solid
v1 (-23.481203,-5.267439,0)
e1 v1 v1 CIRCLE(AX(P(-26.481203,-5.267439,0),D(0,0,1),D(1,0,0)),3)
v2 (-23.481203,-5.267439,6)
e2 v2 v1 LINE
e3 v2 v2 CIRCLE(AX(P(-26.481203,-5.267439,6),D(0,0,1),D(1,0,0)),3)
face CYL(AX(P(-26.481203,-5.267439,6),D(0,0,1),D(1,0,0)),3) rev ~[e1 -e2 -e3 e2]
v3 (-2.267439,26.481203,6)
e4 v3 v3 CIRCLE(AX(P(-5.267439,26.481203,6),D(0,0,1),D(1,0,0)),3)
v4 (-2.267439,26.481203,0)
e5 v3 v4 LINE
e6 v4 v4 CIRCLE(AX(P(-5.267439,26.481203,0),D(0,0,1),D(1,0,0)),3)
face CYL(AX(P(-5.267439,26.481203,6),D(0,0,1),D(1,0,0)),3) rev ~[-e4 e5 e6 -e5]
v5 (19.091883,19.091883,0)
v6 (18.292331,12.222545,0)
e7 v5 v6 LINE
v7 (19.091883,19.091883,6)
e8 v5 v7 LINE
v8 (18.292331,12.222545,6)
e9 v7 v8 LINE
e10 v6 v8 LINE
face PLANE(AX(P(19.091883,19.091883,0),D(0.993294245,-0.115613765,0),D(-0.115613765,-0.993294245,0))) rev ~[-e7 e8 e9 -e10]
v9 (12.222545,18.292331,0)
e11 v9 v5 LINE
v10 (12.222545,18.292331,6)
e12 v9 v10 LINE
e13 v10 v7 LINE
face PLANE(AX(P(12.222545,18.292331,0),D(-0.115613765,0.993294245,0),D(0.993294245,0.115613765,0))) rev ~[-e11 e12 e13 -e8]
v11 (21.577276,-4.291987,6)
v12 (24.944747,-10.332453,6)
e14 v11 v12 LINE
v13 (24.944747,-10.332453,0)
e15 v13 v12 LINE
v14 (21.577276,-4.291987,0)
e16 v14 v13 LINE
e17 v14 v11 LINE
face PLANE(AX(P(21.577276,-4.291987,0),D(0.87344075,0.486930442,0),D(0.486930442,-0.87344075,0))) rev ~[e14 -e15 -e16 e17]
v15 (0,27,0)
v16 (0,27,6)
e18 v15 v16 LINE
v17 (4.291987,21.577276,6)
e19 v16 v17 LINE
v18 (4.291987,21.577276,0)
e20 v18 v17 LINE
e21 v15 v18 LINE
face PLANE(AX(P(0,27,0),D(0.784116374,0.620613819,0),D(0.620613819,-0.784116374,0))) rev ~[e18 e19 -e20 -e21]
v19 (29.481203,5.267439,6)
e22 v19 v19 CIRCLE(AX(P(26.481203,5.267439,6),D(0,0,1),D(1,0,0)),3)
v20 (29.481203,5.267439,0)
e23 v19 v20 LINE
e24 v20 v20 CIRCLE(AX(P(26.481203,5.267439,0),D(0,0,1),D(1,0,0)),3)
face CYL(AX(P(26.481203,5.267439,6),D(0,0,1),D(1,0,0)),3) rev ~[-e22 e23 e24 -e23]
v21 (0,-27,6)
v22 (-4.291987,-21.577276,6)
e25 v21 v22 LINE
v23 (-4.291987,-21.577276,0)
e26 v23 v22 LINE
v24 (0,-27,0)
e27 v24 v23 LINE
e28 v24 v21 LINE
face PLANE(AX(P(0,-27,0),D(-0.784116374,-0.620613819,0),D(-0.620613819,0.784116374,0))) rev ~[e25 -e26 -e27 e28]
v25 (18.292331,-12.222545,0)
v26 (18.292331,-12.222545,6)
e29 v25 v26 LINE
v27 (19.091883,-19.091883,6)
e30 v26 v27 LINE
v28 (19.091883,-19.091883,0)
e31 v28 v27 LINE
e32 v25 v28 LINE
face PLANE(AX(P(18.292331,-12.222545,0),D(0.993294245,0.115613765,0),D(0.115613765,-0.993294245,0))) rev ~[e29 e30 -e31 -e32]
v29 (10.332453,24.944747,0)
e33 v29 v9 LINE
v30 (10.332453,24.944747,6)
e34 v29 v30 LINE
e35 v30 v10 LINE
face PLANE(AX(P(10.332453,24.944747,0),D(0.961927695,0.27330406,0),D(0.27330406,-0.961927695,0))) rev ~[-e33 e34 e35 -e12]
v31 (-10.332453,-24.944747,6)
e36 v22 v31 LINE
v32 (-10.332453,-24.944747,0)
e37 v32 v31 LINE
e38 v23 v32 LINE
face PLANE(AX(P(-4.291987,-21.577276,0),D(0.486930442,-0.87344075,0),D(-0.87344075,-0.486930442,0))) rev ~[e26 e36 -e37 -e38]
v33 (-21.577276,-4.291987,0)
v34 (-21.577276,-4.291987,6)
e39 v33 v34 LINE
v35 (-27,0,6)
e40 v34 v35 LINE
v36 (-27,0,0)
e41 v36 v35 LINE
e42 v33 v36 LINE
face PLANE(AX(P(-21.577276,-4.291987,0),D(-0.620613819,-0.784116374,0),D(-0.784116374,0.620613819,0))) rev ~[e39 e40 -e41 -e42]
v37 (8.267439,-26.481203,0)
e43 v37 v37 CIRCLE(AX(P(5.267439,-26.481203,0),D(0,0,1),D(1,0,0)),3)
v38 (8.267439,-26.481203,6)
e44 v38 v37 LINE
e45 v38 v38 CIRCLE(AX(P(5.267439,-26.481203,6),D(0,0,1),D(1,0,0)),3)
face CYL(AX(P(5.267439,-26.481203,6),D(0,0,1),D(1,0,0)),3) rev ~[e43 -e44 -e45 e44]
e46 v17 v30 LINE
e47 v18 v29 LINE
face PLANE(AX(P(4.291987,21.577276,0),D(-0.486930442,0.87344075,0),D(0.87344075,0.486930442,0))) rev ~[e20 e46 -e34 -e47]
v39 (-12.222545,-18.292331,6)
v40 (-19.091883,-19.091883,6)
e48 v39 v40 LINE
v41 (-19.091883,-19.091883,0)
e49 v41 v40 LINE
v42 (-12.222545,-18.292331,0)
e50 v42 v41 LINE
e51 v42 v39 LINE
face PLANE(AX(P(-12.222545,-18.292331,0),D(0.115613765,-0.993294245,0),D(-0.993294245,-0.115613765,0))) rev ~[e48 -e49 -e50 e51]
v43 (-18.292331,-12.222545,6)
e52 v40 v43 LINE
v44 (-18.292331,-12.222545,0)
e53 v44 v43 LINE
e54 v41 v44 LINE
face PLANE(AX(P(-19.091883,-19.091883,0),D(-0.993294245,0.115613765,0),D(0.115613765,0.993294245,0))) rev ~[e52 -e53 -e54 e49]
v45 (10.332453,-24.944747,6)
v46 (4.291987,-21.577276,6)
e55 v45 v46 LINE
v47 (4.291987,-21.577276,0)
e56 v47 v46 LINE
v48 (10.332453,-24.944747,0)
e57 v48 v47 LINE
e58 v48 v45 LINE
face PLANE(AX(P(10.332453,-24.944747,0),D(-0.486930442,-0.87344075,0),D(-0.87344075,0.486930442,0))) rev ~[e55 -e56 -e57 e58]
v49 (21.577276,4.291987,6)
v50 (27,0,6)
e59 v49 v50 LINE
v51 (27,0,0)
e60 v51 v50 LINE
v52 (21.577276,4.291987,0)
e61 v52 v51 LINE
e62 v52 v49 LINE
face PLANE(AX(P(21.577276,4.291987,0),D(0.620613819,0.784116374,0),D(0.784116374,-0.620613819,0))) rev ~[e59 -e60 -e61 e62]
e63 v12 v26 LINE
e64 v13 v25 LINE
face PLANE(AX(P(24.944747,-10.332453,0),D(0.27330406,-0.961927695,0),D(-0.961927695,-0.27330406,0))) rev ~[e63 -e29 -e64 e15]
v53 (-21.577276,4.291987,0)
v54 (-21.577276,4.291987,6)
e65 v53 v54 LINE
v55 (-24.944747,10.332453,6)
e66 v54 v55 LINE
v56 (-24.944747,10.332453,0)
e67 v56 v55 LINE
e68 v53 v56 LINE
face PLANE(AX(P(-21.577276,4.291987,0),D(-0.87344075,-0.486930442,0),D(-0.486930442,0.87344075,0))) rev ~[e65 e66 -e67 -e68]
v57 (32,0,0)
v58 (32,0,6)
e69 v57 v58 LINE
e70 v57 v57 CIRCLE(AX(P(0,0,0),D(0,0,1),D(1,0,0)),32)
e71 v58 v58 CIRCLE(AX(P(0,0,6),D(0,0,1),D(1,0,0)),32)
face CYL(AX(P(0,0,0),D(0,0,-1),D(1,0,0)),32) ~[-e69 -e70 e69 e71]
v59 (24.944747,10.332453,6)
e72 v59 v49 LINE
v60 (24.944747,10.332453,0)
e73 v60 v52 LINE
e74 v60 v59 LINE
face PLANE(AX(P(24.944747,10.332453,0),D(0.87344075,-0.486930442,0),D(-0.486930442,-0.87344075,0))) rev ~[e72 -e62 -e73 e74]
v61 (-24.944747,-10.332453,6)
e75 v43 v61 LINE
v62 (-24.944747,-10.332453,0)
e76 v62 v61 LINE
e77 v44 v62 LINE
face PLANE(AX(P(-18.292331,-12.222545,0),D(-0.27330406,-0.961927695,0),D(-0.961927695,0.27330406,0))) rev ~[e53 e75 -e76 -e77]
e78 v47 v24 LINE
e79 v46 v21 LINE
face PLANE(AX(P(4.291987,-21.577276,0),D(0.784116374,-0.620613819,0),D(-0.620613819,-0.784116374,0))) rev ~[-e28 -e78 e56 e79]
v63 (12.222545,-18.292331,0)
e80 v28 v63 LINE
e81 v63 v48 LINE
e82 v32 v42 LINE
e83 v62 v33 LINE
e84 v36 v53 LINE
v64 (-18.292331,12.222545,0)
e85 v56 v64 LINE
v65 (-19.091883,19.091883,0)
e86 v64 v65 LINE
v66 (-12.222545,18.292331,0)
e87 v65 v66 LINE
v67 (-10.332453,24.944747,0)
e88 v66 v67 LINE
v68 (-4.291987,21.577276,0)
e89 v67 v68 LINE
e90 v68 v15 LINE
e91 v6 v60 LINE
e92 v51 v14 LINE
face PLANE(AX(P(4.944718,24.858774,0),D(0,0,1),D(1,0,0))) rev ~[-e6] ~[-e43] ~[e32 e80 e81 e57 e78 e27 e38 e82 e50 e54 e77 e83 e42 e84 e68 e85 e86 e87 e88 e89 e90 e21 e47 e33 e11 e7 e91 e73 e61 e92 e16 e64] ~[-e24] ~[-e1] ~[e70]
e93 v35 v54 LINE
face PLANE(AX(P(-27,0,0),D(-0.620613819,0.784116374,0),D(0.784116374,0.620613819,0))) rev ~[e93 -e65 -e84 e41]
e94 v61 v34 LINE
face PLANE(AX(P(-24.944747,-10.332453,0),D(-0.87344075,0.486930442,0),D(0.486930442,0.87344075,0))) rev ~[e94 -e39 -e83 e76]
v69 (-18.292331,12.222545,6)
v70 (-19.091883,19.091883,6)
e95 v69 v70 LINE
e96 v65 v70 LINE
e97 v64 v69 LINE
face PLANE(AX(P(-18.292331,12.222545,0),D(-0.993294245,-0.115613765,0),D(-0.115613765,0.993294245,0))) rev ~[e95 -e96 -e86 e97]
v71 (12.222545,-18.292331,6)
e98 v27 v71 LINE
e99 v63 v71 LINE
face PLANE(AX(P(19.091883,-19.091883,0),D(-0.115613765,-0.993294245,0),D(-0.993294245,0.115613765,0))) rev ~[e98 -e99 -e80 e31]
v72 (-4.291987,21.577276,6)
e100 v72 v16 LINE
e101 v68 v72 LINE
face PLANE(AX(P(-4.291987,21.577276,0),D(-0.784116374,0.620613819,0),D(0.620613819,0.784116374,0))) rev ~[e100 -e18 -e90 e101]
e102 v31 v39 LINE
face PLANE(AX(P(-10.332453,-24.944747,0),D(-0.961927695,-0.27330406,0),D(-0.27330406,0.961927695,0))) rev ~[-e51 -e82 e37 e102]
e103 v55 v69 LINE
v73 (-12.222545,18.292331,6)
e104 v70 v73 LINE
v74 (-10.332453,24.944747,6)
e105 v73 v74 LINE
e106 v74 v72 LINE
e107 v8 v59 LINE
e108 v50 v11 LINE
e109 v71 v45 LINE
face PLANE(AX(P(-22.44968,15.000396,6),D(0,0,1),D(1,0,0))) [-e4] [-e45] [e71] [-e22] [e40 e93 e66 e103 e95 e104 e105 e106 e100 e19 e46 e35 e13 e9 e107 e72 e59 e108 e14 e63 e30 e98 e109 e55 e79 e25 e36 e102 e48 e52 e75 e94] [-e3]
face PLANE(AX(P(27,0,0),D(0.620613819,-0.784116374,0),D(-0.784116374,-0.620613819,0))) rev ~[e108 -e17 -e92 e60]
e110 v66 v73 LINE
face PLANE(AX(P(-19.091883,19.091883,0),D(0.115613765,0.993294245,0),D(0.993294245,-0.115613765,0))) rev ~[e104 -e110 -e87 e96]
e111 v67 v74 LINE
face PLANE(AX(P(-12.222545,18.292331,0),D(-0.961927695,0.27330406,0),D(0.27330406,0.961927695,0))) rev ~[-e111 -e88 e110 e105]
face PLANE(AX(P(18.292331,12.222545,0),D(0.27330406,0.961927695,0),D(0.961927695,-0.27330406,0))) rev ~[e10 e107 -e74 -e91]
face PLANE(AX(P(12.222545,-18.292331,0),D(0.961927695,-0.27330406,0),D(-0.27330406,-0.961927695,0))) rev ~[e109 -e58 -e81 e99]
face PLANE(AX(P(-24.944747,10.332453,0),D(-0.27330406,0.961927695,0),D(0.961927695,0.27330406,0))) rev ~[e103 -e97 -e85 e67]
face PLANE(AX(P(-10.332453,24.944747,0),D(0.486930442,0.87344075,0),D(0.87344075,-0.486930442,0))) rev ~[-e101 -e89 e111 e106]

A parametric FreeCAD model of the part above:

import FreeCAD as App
import Part
import Sketcher
from FreeCAD import Vector


def add_polygon(sketch, points):
    """Adds a closed chain of lines whose ends are joined by coincident constraints."""
    first, n = sketch.GeometryCount, len(points)
    for a, b in zip(points, points[1:] + points[:1]):
        sketch.addGeometry(Part.LineSegment(App.Vector(*a, 0), App.Vector(*b, 0)), False)
    for i in range(n):
        sketch.addConstraint(Sketcher.Constraint("Coincident", first + i, 2, first + (i + 1) % n, 1))

doc = App.newDocument("Part")
body = doc.addObject("PartDesign::Body", "Body")

sketch1 = body.newObject("Sketcher::SketchObject", "Sketch")
sketch1.AttachmentSupport = (doc.getObject("XY_Plane"), [""])
sketch1.MapMode = "FlatFace"
sketch1.addGeometry(Part.Circle(Vector(0, 0, 0), Vector(0, 0, 1), 32), False)
add_polygon(sketch1, [(22, 4), (27, 0), (22, -4), (25, -10), (18, -12), (19, -19), (12, -18), (10, -25), (4, -22), (0, -27), (-4, -22), (-10, -25), (-12, -18), (-19, -19), (-18, -12), (-25, -10), (-22, -4), (-27, 0), (-22, 4), (-25, 10), (-18, 12), (-19, 19), (-12, 18), (-10, 25), (-4, 22), (0, 27), (4, 22), (10, 25), (12, 18), (19, 19), (18, 12), (25, 10)])
sketch1.addConstraint([
    Sketcher.Constraint("Coincident", 0, 3, -1, 1),
    Sketcher.Constraint("Symmetric", 1, 2, 17, 2, -1, 1),
    Sketcher.Constraint("Symmetric", 2, 2, 18, 2, -1, 1),
    Sketcher.Constraint("Symmetric", 3, 2, 19, 2, -1, 1),
    Sketcher.Constraint("Symmetric", 4, 2, 20, 2, -1, 1),
    Sketcher.Constraint("Symmetric", 5, 2, 21, 2, -1, 1),
    Sketcher.Constraint("Symmetric", 6, 2, 22, 2, -1, 1),
    Sketcher.Constraint("Symmetric", 7, 2, 23, 2, -1, 1),
    Sketcher.Constraint("Symmetric", 8, 2, 24, 2, -1, 1),
    Sketcher.Constraint("Symmetric", 9, 2, 25, 2, -1, 1),
    Sketcher.Constraint("Symmetric", 10, 2, 26, 2, -1, 1),
    Sketcher.Constraint("Symmetric", 11, 2, 27, 2, -1, 1),
    Sketcher.Constraint("Symmetric", 12, 2, 28, 2, -1, 1),
    Sketcher.Constraint("Symmetric", 13, 2, 29, 2, -1, 1),
    Sketcher.Constraint("Symmetric", 14, 2, 30, 2, -1, 1),
    Sketcher.Constraint("Symmetric", 15, 2, 31, 2, -1, 1),
    Sketcher.Constraint("Symmetric", 16, 2, 32, 2, -1, 1),
    Sketcher.Constraint("Symmetric", 8, 2, 10, 2, -2),
    Sketcher.Constraint("Symmetric", 7, 2, 11, 2, -2),
    Sketcher.Constraint("Symmetric", 6, 2, 12, 2, -2),
    Sketcher.Constraint("Symmetric", 5, 2, 13, 2, -2),
    Sketcher.Constraint("Symmetric", 4, 2, 14, 2, -2),
    Sketcher.Constraint("Symmetric", 3, 2, 15, 2, -2),
    Sketcher.Constraint("Symmetric", 2, 2, 16, 2, -2),
    Sketcher.Constraint("PointOnObject", 1, 2, -1),
    Sketcher.Constraint("PointOnObject", 9, 2, -2),
    Sketcher.Constraint("Perpendicular", 1, 9),
    Sketcher.Constraint("Perpendicular", 3, 11),
    Sketcher.Constraint("Perpendicular", 4, 12),
    Sketcher.Constraint("Perpendicular", 5, 13),
    Sketcher.Constraint("Equal", 2, 3),
    Sketcher.Constraint("Equal", 3, 4),
    Sketcher.Constraint("Equal", 4, 5),
    Sketcher.Constraint("Equal", 5, 6),
    Sketcher.Constraint("Equal", 6, 7),
    Sketcher.Constraint("Equal", 7, 8),
    Sketcher.Constraint("Equal", 8, 9),
    Sketcher.Constraint("Diameter", 0, 64.0),
    Sketcher.Constraint("DistanceX", -1, 1, 1, 2, 27.0),
    Sketcher.Constraint("DistanceX", -1, 1, 4, 2, 18.292331),
    Sketcher.Constraint("DistanceX", 2, 2, 3, 2, 3.367471),
    Sketcher.Constraint("DistanceY", 4, 2, 2, 2, 7.930558),
    Sketcher.Constraint("DistanceX", 4, 2, 5, 2, 0.799552),
])
pad1 = body.newObject("PartDesign::Pad", "Pad")
pad1.Profile = sketch1
pad1.Length = 6

sketch2 = body.newObject("Sketcher::SketchObject", "Sketch001")
sketch2.AttachmentSupport = (doc.getObject("XY_Plane"), [""])
sketch2.MapMode = "FlatFace"
sketch2.AttachmentOffset = App.Placement(Vector(0, 0, 6), App.Rotation())
sketch2.addGeometry([
    Part.Circle(Vector(-5.3, 26.5, 0), Vector(0, 0, 1), 3),
    Part.Circle(Vector(5.3, -26.5, 0), Vector(0, 0, 1), 3),
    Part.Circle(Vector(26.5, 5.3, 0), Vector(0, 0, 1), 3),
    Part.Circle(Vector(-26.5, -5.3, 0), Vector(0, 0, 1), 3),
    Part.Circle(Vector(22.4, -15, 0), Vector(0, 0, 1), 3),
    Part.Circle(Vector(-22.4, 15, 0), Vector(0, 0, 1), 3),
], False)
sketch2.addConstraint([
    Sketcher.Constraint("Equal", 0, 1),
    Sketcher.Constraint("Equal", 1, 2),
    Sketcher.Constraint("Equal", 2, 3),
    Sketcher.Constraint("Equal", 3, 4),
    Sketcher.Constraint("Equal", 4, 5),
    Sketcher.Constraint("Symmetric", 0, 3, 1, 3, -1, 1),
    Sketcher.Constraint("Symmetric", 2, 3, 3, 3, -1, 1),
    Sketcher.Constraint("Symmetric", 4, 3, 5, 3, -1, 1),
    Sketcher.Constraint("Diameter", 0, 6.0),
    Sketcher.Constraint("DistanceY", 4, 3, 0, 3, 41.481599),
    Sketcher.Constraint("DistanceX", 0, 3, -1, 1, 5.267439),
    Sketcher.Constraint("DistanceY", -1, 1, 2, 3, 5.267439),
    Sketcher.Constraint("DistanceX", -1, 1, 4, 3, 22.44968),
    Sketcher.Constraint("DistanceX", 0, 3, 2, 3, 31.748641),
    Sketcher.Constraint("DistanceY", 1, 3, 2, 3, 31.748641),
])
pocket1 = body.newObject("PartDesign::Pocket", "Pocket")
pocket1.Profile = sketch2
pocket1.Type = "ThroughAll"

sketch3 = body.newObject("Sketcher::SketchObject", "Sketch002")
sketch3.AttachmentSupport = (doc.getObject("XY_Plane"), [""])
sketch3.MapMode = "FlatFace"
sketch3.AttachmentOffset = App.Placement(Vector(0, 0, 6), App.Rotation())
sketch3.addGeometry([
    Part.Circle(Vector(-22.4, 15, 0), Vector(0, 0, 1), 3),
    Part.Circle(Vector(22.4, -15.3, 0), Vector(0, 0, 1), 3.3),
], False)
sketch3.addConstraint([
    Sketcher.Constraint("Diameter", 0, 6.0),
    Sketcher.Constraint("Diameter", 1, 6.562168),
    Sketcher.Constraint("DistanceX", 0, 3, -1, 1, 22.44968),
    Sketcher.Constraint("DistanceY", 1, 3, -1, 1, 15.280341),
    Sketcher.Constraint("DistanceY", -1, 1, 0, 3, 15.000396),
    Sketcher.Constraint("DistanceX", -1, 1, 1, 3, 22.424397),
])
pad2 = body.newObject("PartDesign::Pad", "Pad001")
pad2.Profile = sketch3
pad2.Length = 6
pad2.Reversed = True

doc.recompute()
